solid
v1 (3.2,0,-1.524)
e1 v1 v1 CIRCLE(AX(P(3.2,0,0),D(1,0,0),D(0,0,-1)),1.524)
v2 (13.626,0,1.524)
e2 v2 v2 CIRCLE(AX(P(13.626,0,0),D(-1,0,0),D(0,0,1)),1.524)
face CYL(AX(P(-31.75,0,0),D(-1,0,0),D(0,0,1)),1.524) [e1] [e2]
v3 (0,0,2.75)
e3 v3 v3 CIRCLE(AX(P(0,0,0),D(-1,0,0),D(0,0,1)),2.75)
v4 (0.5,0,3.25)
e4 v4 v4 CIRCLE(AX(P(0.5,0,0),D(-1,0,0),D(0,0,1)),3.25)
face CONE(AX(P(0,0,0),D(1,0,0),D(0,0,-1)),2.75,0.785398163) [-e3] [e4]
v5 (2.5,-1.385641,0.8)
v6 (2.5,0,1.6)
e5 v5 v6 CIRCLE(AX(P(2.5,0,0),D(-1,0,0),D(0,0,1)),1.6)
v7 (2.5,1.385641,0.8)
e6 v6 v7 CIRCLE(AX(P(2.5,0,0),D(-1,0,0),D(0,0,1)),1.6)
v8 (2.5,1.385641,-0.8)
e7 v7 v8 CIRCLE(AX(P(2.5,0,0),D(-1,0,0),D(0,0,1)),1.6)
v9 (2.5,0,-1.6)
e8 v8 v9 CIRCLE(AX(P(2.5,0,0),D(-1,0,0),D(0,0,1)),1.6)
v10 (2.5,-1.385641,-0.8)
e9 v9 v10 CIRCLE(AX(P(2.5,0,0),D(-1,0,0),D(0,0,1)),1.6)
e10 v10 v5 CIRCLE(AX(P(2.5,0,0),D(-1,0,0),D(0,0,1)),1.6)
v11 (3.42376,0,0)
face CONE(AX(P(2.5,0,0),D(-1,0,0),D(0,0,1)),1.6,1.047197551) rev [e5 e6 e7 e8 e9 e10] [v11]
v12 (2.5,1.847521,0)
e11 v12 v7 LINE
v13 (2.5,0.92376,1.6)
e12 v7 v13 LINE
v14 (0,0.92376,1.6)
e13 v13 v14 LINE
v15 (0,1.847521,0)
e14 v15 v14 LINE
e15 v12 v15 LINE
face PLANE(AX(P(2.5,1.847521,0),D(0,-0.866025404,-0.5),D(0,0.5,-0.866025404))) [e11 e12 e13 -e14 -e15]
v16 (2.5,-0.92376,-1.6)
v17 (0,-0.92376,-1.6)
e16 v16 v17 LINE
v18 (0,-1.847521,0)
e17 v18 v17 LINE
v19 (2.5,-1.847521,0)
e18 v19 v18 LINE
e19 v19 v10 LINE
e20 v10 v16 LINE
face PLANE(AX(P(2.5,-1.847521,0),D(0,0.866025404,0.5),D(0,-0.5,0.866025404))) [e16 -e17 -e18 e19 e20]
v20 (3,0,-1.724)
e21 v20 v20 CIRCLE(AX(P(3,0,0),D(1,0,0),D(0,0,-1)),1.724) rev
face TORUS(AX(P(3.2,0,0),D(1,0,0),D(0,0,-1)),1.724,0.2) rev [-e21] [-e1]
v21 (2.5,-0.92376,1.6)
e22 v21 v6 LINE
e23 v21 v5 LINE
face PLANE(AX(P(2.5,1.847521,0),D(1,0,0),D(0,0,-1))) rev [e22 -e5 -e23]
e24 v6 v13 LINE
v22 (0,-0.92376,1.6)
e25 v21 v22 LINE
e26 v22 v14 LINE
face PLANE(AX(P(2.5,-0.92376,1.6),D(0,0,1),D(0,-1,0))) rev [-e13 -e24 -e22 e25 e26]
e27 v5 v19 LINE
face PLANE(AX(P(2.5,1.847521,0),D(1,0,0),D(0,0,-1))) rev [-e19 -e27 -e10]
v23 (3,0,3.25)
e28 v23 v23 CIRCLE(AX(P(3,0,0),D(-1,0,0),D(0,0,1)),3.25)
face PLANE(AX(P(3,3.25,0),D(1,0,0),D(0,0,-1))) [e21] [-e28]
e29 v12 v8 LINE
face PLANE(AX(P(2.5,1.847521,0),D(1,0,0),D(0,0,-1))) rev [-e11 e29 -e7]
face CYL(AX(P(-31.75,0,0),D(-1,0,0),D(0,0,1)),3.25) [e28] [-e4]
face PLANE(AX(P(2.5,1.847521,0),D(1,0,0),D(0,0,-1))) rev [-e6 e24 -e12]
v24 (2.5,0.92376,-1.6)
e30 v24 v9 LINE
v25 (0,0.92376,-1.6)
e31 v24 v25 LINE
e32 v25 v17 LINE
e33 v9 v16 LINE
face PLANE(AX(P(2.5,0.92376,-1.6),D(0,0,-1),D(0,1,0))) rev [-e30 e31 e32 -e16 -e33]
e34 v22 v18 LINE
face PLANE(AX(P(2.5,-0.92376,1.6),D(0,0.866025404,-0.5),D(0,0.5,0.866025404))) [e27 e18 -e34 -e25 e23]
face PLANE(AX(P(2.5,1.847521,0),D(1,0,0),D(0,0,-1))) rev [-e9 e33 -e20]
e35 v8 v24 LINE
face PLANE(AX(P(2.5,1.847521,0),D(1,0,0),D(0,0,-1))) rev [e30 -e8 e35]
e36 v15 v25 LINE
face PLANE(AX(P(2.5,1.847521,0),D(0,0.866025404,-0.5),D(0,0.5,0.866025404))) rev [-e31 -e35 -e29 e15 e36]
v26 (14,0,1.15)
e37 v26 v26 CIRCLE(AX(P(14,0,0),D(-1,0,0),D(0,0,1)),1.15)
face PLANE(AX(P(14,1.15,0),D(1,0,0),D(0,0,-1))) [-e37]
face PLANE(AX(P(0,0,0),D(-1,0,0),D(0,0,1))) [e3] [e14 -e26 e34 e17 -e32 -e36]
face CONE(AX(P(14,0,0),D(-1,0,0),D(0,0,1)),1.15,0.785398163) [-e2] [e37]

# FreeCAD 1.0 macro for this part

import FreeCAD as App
import Part
import Sketcher
from FreeCAD import Vector
Q = App.Units.Quantity


def edges_at(feature, points):
    """Names of the edges that pass closest to the given points."""
    edges = feature.Shape.Edges
    near = lambda p: min(range(len(edges)), key=lambda i: edges[i].distToShape(Part.Vertex(*p))[0])
    return sorted({f"Edge{near(p) + 1}" for p in points})


def add_polygon(sketch, points):
    """Adds a closed chain of lines whose ends are joined by coincident constraints."""
    first, n = sketch.GeometryCount, len(points)
    for a, b in zip(points, points[1:] + points[:1]):
        sketch.addGeometry(Part.LineSegment(App.Vector(*a, 0), App.Vector(*b, 0)), False)
    for i in range(n):
        sketch.addConstraint(Sketcher.Constraint("Coincident", first + i, 2, first + (i + 1) % n, 1))

doc = App.newDocument("Part")
body = doc.addObject("PartDesign::Body", "Body")

# Sketch on XY plane
sketch1 = body.newObject("Sketcher::SketchObject", "Sketch")
sketch1.AttachmentSupport = (doc.getObject("XY_Plane"), [""])
sketch1.MapMode = "FlatFace"
add_polygon(sketch1, [(0, 2.75), (0, 0), (14, 0), (14, 1.15), (13.626, 1.524), (3, 1.524), (3, 3.25), (0.5, 3.25)])  # lines 0-7
sketch1.addConstraint([
    Sketcher.Constraint("Vertical", 0),
    Sketcher.Constraint("Horizontal", 1),
    Sketcher.Constraint("Vertical", 2),
    Sketcher.Constraint("Horizontal", 4),
    Sketcher.Constraint("Vertical", 5),
    Sketcher.Constraint("Horizontal", 6),
    Sketcher.Constraint("Coincident", 0, 2, -1, 1),
    Sketcher.Constraint("Perpendicular", 3, 7),
    Sketcher.Constraint("DistanceX", 1, 1, 1, 2, 14.0),
    Sketcher.Constraint("Angle", 3, Q("135 deg")),
    Sketcher.Constraint("DistanceX", 6, 2, 6, 1, 2.5),
    Sketcher.Constraint("DistanceX", -1, 1, 4, 2, 3.0),
    Sketcher.Constraint("DistanceY", 0, 2, 0, 1, 2.75),
    Sketcher.Constraint("DistanceY", 2, 1, 2, 2, 1.15),
    Sketcher.Constraint("DistanceX", 4, 2, 4, 1, 10.626),
])
revolution = body.newObject("PartDesign::Revolution", "Revolution")
revolution.Profile = sketch1
revolution.ReferenceAxis = (sketch1, ["H_Axis"])
revolution.Angle = 360
doc.recompute()

fillet = body.newObject("PartDesign::Fillet", "Fillet")
fillet.Base = (revolution, edges_at(revolution, [(3, -1.524, 0)]))
fillet.Radius = 0.2

# Sketch on XY plane
sketch2 = body.newObject("Sketcher::SketchObject", "Sketch001")
sketch2.AttachmentSupport = (doc.getObject("XY_Plane"), [""])
sketch2.MapMode = "FlatFace"
add_polygon(sketch2, [(2.5, 1.6), (0, 1.6), (0, 0), (3.42376, 0)])  # lines 0-3
sketch2.addConstraint([
    Sketcher.Constraint("Horizontal", 0),
    Sketcher.Constraint("Vertical", 1),
    Sketcher.Constraint("Horizontal", 2),
    Sketcher.Constraint("Coincident", 1, 2, -1, 1),
    Sketcher.Constraint("Angle", 3, Q("120 deg")),
    Sketcher.Constraint("DistanceX", 0, 2, 0, 1, 2.5),
    Sketcher.Constraint("DistanceY", 1, 2, 1, 1, 1.6),
])
groove = body.newObject("PartDesign::Groove", "Groove")
groove.Profile = sketch2
groove.ReferenceAxis = (sketch2, ["H_Axis"])
groove.Angle = 360

# Sketch on YZ plane
sketch3 = body.newObject("Sketcher::SketchObject", "Sketch002")
sketch3.AttachmentSupport = (doc.getObject("YZ_Plane"), [""])
sketch3.MapMode = "FlatFace"
add_polygon(sketch3, [(1.847521, 0), (0.92376, -1.6), (-0.92376, -1.6), (-1.847521, 0), (-0.92376, 1.6), (0.92376, 1.6)])  # lines 0-5
sketch3.addConstraint([
    Sketcher.Constraint("Horizontal", 1),
    Sketcher.Constraint("Horizontal", 4),
    Sketcher.Constraint("Symmetric", 0, 2, 3, 2, -1, 1),
    Sketcher.Constraint("Symmetric", 2, 2, 5, 2, -1, 1),
    Sketcher.Constraint("PointOnObject", 2, 2, -1),
    Sketcher.Constraint("Parallel", 2, 5),
    Sketcher.Constraint("Vertical", 1, 2, 3, 2),
    Sketcher.Constraint("Angle", 0, Q("-120 deg")),
    Sketcher.Constraint("DistanceY", 0, 2, -1, 1, 1.6),
    Sketcher.Constraint("DistanceX", 1, 2, 1, 1, 1.847521),
])
pocket1 = body.newObject("PartDesign::Pocket", "Pocket")
pocket1.Profile = sketch3
pocket1.Length = 2.5
pocket1.Reversed = True

doc.recompute()
